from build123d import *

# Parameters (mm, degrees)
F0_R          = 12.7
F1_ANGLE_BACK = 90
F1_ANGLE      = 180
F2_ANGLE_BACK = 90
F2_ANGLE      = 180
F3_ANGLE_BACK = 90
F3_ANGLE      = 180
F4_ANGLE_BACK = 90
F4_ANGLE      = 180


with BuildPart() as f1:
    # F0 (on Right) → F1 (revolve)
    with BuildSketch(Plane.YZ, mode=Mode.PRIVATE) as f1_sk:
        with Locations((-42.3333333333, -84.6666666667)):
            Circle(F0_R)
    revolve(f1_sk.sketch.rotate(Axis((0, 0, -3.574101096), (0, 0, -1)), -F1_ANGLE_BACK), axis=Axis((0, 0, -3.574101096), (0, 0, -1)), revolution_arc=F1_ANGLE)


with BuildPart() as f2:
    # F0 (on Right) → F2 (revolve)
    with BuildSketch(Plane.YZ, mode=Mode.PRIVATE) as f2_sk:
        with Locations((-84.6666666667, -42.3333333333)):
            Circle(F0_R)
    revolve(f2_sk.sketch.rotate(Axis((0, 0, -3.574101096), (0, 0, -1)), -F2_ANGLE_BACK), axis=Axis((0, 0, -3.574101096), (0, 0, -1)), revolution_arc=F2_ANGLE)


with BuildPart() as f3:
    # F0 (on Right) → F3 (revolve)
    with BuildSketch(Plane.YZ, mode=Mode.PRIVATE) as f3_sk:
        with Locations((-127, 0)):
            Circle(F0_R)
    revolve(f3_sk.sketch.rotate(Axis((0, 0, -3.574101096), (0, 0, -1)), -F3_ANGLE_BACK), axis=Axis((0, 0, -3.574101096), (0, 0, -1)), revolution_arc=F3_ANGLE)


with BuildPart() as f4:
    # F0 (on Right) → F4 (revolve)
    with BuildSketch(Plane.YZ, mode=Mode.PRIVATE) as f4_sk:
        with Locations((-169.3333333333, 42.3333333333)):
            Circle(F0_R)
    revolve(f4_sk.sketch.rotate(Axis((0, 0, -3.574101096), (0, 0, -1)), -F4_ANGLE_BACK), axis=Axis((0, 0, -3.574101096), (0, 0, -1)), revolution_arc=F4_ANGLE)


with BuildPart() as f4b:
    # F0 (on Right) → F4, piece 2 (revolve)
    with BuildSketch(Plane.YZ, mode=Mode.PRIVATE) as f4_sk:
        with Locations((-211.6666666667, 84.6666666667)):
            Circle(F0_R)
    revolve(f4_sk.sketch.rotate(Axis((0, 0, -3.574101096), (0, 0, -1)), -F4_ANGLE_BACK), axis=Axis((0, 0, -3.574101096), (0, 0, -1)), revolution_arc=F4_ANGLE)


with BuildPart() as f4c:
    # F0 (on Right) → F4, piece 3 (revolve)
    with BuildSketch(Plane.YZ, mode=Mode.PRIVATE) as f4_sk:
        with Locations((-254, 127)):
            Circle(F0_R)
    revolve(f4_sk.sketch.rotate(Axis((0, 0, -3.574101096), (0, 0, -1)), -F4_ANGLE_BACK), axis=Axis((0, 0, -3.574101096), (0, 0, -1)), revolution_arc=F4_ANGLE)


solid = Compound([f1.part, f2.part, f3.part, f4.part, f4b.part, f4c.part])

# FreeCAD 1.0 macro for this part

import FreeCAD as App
import Part
import Sketcher

V = App.Vector
Q = App.Units.Quantity

doc = App.newDocument("Part")
body = doc.addObject("PartDesign::Body", "Body")

# Sketch on XZ plane
sketch1 = body.newObject("Sketcher::SketchObject", "Sketch")
sketch1.AttachmentSupport = (doc.getObject("XZ_Plane"), [""])
sketch1.MapMode = "FlatFace"
sketch1.addGeometry(Part.Circle(V(42, -85, 0), V(0, 0, 1), 13), False)
sketch1.addConstraint([
    Sketcher.Constraint("Diameter", 0, Q("1 in")),
    Sketcher.Constraint("DistanceX", -1, 1, 0, 3, Q("42.333333 mm")),
    Sketcher.Constraint("DistanceY", 0, 3, -1, 1, Q("84.666667 mm")),
])
revolution = body.newObject("PartDesign::Revolution", "Revolution")
revolution.Profile = sketch1
revolution.ReferenceAxis = (sketch1, ["V_Axis"])
revolution.Angle = 180
revolution.Reversed = True
body2 = doc.addObject("PartDesign::Body", "Body001")

# Sketch on XZ plane
sketch2 = body2.newObject("Sketcher::SketchObject", "Sketch001")
sketch2.AttachmentSupport = (doc.getObject("XZ_Plane001"), [""])
sketch2.MapMode = "FlatFace"
sketch2.addGeometry(Part.Circle(V(85, -42, 0), V(0, 0, 1), 13), False)
sketch2.addConstraint([
    Sketcher.Constraint("Diameter", 0, Q("1 in")),
    Sketcher.Constraint("DistanceX", -1, 1, 0, 3, Q("84.666667 mm")),
    Sketcher.Constraint("DistanceY", 0, 3, -1, 1, Q("42.333333 mm")),
])
revolution2 = body2.newObject("PartDesign::Revolution", "Revolution001")
revolution2.Profile = sketch2
revolution2.ReferenceAxis = (sketch2, ["V_Axis"])
revolution2.Angle = 180
revolution2.Reversed = True
body3 = doc.addObject("PartDesign::Body", "Body002")

# Sketch on XZ plane
sketch3 = body3.newObject("Sketcher::SketchObject", "Sketch002")
sketch3.AttachmentSupport = (doc.getObject("XZ_Plane002"), [""])
sketch3.MapMode = "FlatFace"
sketch3.addGeometry(Part.Circle(V(127, 0, 0), V(0, 0, 1), 13), False)
sketch3.addConstraint([
    Sketcher.Constraint("PointOnObject", 0, 3, -1),
    Sketcher.Constraint("Diameter", 0, Q("1 in")),
    Sketcher.Constraint("DistanceX", -1, 1, 0, 3, Q("5 in")),
])
revolution3 = body3.newObject("PartDesign::Revolution", "Revolution002")
revolution3.Profile = sketch3
revolution3.ReferenceAxis = (sketch3, ["V_Axis"])
revolution3.Angle = 180
revolution3.Reversed = True
body4 = doc.addObject("PartDesign::Body", "Body003")

# Sketch on XZ plane
sketch4 = body4.newObject("Sketcher::SketchObject", "Sketch003")
sketch4.AttachmentSupport = (doc.getObject("XZ_Plane003"), [""])
sketch4.MapMode = "FlatFace"
sketch4.addGeometry(Part.Circle(V(169, 42, 0), V(0, 0, 1), 13), False)
sketch4.addConstraint([
    Sketcher.Constraint("Diameter", 0, Q("1 in")),
    Sketcher.Constraint("DistanceX", -1, 1, 0, 3, Q("169.333333 mm")),
    Sketcher.Constraint("DistanceY", -1, 1, 0, 3, Q("42.333333 mm")),
])
revolution4 = body4.newObject("PartDesign::Revolution", "Revolution003")
revolution4.Profile = sketch4
revolution4.ReferenceAxis = (sketch4, ["V_Axis"])
revolution4.Angle = 180
revolution4.Reversed = True
body5 = doc.addObject("PartDesign::Body", "Body004")

# Sketch on XZ plane
sketch5 = body5.newObject("Sketcher::SketchObject", "Sketch004")
sketch5.AttachmentSupport = (doc.getObject("XZ_Plane004"), [""])
sketch5.MapMode = "FlatFace"
sketch5.addGeometry(Part.Circle(V(212, 85, 0), V(0, 0, 1), 13), False)
sketch5.addConstraint([
    Sketcher.Constraint("Diameter", 0, Q("1 in")),
    Sketcher.Constraint("DistanceX", -1, 1, 0, 3, Q("211.666667 mm")),
    Sketcher.Constraint("DistanceY", -1, 1, 0, 3, Q("84.666667 mm")),
])
revolution5 = body5.newObject("PartDesign::Revolution", "Revolution004")
revolution5.Profile = sketch5
revolution5.ReferenceAxis = (sketch5, ["V_Axis"])
revolution5.Angle = 180
revolution5.Reversed = True
body6 = doc.addObject("PartDesign::Body", "Body005")

# Sketch on XZ plane
sketch6 = body6.newObject("Sketcher::SketchObject", "Sketch005")
sketch6.AttachmentSupport = (doc.getObject("XZ_Plane005"), [""])
sketch6.MapMode = "FlatFace"
sketch6.addGeometry(Part.Circle(V(254, 127, 0), V(0, 0, 1), 13), False)
sketch6.addConstraint([
    Sketcher.Constraint("Diameter", 0, Q("1 in")),
    Sketcher.Constraint("DistanceX", -1, 1, 0, 3, Q("10 in")),
    Sketcher.Constraint("DistanceY", -1, 1, 0, 3, Q("5 in")),
])
revolution6 = body6.newObject("PartDesign::Revolution", "Revolution005")
revolution6.Profile = sketch6
revolution6.ReferenceAxis = (sketch6, ["V_Axis"])
revolution6.Angle = 180
revolution6.Reversed = True

doc.recompute()
